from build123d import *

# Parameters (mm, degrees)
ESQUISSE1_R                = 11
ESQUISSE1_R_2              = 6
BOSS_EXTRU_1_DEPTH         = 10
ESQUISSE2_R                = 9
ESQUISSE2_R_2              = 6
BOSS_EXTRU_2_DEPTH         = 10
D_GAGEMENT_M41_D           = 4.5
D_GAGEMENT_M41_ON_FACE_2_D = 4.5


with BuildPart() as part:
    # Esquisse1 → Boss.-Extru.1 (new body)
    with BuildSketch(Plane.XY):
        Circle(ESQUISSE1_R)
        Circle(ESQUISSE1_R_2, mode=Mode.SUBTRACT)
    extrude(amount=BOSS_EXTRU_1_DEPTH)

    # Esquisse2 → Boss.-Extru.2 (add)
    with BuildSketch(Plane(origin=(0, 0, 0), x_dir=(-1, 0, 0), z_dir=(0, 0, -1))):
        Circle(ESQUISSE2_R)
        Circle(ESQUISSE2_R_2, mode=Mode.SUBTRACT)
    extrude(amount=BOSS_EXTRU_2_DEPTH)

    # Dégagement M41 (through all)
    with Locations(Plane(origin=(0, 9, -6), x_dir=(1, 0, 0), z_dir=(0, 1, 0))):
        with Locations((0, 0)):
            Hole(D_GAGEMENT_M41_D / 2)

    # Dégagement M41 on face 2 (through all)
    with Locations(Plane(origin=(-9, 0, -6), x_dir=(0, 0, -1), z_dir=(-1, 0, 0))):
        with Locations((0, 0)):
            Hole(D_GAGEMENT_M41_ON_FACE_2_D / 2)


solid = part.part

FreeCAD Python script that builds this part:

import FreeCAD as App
import Part
import Sketcher

V = App.Vector
Q = App.Units.Quantity

doc = App.newDocument("Part")
body = doc.addObject("PartDesign::Body", "Body")

# Sketch on XY plane
sketch1 = body.newObject("Sketcher::SketchObject", "Sketch")
sketch1.AttachmentSupport = (doc.getObject("XY_Plane"), [""])
sketch1.MapMode = "FlatFace"
sketch1.addGeometry(Part.Circle(V(0, 0, 0), V(0, 0, 1), 11), False)
sketch1.addGeometry(Part.Circle(V(0, 0, 0), V(0, 0, 1), 6), False)
sketch1.addConstraint(Sketcher.Constraint("Coincident", 0, 3, -1, 1))
sketch1.addConstraint(Sketcher.Constraint("Coincident", 1, 3, -1, 1))
sketch1.addConstraint(Sketcher.Constraint("Diameter", 0, Q("22 mm")))
sketch1.addConstraint(Sketcher.Constraint("Diameter", 1, Q("12 mm")))
pad1 = body.newObject("PartDesign::Pad", "Pad")
pad1.Profile = sketch1
pad1.Length = 10

# Sketch on XY plane
sketch2 = body.newObject("Sketcher::SketchObject", "Sketch001")
sketch2.AttachmentSupport = (doc.getObject("XY_Plane"), [""])
sketch2.MapMode = "FlatFace"
sketch2.addGeometry(Part.Circle(V(0, 0, 0), V(0, 0, 1), 9), False)
sketch2.addGeometry(Part.Circle(V(0, 0, 0), V(0, 0, 1), 6), False)
sketch2.addConstraint(Sketcher.Constraint("Coincident", 0, 3, -1, 1))
sketch2.addConstraint(Sketcher.Constraint("Coincident", 1, 3, -1, 1))
sketch2.addConstraint(Sketcher.Constraint("Diameter", 0, Q("18 mm")))
sketch2.addConstraint(Sketcher.Constraint("Diameter", 1, Q("12 mm")))
pad2 = body.newObject("PartDesign::Pad", "Pad001")
pad2.Profile = sketch2
pad2.Length = 10
pad2.Reversed = True

# Sketch on XZ plane
sketch3 = body.newObject("Sketcher::SketchObject", "Sketch002")
sketch3.AttachmentSupport = (doc.getObject("XZ_Plane"), [""])
sketch3.MapMode = "FlatFace"
sketch3.AttachmentOffset = App.Placement(V(0, 0, -9), App.Rotation())
sketch3.addGeometry(Part.Circle(V(0, -6, 0), V(0, 0, 1), 2.25), False)
sketch3.addConstraint(Sketcher.Constraint("PointOnObject", 0, 3, -2))
sketch3.addConstraint(Sketcher.Constraint("Diameter", 0, Q("4.5 mm")))
sketch3.addConstraint(Sketcher.Constraint("DistanceY", 0, 3, -1, 1, Q("6 mm")))
doc.recompute()
hole = body.newObject("PartDesign::Hole", "Hole")
hole.Profile = sketch3
hole.ThreadType = "None"
hole.Diameter = 4.5
hole.DepthType = "ThroughAll"
hole.Reversed = True

# Sketch on YZ plane
sketch4 = body.newObject("Sketcher::SketchObject", "Sketch003")
sketch4.AttachmentSupport = (doc.getObject("YZ_Plane"), [""])
sketch4.MapMode = "FlatFace"
sketch4.AttachmentOffset = App.Placement(V(0, 0, -9), App.Rotation())
sketch4.addGeometry(Part.Circle(V(0, -6, 0), V(0, 0, 1), 2.25), False)
sketch4.addConstraint(Sketcher.Constraint("PointOnObject", 0, 3, -2))
sketch4.addConstraint(Sketcher.Constraint("Diameter", 0, Q("4.5 mm")))
sketch4.addConstraint(Sketcher.Constraint("DistanceY", 0, 3, -1, 1, Q("6 mm")))
doc.recompute()
hole2 = body.newObject("PartDesign::Hole", "Hole001")
hole2.Profile = sketch4
hole2.ThreadType = "None"
hole2.Diameter = 4.5
hole2.DepthType = "ThroughAll"
hole2.Reversed = True

doc.recompute()
